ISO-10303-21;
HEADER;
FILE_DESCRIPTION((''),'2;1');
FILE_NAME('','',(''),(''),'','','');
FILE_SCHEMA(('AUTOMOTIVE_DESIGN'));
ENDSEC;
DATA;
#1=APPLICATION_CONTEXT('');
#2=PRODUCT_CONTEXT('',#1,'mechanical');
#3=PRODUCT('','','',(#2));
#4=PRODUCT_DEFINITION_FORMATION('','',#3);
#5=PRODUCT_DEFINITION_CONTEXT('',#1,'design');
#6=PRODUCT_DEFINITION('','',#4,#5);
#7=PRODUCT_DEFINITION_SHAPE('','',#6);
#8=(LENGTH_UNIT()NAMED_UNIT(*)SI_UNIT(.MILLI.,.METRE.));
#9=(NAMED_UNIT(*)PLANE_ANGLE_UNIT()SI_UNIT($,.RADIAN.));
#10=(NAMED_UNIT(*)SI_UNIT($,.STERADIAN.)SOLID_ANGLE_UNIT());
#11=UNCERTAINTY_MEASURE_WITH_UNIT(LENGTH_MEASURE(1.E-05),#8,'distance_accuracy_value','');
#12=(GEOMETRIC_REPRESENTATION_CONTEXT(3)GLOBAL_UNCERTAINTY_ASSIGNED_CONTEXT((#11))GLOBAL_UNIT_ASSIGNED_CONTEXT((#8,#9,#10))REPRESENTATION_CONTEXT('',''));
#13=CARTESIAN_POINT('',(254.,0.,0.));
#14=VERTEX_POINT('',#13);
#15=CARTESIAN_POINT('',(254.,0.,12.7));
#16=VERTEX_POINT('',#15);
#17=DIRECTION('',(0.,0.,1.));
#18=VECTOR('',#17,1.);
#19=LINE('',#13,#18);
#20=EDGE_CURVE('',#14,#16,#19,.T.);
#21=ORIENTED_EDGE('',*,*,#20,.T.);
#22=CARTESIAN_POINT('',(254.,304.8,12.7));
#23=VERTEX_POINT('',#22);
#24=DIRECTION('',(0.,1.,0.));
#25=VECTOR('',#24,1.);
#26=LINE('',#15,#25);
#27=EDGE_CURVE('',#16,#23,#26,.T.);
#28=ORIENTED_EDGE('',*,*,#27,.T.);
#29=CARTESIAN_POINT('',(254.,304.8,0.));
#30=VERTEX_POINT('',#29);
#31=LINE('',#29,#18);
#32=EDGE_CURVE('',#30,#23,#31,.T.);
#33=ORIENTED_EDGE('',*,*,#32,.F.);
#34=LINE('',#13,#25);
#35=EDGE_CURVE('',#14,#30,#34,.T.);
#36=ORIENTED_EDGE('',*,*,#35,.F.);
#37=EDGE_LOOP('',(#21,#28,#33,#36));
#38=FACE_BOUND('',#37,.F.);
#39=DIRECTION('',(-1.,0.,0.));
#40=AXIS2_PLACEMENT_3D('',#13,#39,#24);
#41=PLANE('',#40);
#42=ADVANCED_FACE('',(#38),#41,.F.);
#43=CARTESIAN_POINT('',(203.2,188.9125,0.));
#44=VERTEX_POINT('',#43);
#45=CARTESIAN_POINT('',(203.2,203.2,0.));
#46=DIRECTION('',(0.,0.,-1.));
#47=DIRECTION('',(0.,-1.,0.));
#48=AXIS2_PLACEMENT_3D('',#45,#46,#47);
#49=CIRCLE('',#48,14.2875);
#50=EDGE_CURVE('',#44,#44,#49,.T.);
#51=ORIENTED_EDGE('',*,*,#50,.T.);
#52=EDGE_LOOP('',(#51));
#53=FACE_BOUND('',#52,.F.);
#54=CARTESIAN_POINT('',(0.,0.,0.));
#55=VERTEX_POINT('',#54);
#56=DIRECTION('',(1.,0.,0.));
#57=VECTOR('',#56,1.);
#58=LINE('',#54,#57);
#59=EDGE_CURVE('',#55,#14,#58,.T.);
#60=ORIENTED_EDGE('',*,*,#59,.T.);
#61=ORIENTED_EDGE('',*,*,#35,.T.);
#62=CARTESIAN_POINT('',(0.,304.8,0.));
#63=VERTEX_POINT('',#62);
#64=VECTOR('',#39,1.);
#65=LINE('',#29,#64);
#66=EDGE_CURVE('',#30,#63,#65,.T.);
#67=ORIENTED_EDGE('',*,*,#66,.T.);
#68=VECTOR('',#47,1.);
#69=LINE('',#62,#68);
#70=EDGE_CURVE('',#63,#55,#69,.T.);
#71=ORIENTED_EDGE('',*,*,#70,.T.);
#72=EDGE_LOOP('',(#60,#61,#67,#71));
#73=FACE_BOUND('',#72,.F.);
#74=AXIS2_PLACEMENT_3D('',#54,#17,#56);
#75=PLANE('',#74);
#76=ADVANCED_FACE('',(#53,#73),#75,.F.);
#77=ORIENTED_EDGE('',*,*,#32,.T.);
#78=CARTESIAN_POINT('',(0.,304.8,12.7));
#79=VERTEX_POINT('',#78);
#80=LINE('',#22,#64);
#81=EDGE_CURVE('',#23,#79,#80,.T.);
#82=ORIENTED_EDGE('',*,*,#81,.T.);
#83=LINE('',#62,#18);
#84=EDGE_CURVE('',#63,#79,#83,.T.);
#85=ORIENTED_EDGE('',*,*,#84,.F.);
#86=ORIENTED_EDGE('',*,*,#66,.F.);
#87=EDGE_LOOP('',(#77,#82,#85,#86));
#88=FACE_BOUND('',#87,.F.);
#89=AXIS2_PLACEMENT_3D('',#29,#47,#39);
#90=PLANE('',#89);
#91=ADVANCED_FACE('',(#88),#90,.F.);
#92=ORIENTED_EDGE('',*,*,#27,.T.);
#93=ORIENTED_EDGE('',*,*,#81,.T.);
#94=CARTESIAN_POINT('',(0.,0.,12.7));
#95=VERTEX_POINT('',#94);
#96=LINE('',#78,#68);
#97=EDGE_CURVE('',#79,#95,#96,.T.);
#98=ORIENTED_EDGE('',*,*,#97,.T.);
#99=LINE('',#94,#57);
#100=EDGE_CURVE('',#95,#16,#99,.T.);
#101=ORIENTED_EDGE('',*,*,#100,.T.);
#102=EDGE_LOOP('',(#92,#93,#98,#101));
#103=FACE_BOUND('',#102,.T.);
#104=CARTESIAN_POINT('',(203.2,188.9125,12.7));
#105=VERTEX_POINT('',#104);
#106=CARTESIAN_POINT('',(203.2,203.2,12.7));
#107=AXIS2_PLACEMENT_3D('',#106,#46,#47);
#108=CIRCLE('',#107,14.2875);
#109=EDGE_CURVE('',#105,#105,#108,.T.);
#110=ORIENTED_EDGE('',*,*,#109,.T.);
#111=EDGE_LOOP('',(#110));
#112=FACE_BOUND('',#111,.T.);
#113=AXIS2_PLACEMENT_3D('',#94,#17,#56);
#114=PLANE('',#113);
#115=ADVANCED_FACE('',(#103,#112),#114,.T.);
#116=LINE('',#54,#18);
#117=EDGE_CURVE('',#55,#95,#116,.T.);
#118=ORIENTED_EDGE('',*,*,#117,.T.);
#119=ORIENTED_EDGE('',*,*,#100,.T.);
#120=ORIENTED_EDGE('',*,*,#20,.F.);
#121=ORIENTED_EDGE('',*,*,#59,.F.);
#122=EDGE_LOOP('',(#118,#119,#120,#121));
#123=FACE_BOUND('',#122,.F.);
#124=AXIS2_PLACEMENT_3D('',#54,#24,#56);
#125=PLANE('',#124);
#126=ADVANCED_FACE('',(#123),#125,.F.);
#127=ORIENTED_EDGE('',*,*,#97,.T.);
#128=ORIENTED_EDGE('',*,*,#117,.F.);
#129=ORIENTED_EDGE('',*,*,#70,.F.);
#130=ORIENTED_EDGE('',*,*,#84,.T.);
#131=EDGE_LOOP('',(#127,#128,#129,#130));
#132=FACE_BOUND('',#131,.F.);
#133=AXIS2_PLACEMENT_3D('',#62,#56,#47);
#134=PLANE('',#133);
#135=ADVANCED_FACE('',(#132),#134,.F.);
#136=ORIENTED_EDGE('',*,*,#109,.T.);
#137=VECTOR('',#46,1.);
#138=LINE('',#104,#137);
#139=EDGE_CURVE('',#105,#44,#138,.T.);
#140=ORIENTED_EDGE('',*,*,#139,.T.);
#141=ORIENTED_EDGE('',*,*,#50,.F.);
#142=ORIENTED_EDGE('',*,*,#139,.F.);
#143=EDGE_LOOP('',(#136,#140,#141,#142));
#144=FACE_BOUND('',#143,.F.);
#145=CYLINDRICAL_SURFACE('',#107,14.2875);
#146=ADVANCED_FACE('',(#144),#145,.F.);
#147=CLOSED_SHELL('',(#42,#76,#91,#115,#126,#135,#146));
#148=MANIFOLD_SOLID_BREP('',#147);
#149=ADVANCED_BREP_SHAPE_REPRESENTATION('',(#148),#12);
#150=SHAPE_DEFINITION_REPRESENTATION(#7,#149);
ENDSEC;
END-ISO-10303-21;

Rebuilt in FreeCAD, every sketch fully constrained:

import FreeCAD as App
import Part
import Sketcher

V = App.Vector
Q = App.Units.Quantity


def add_polygon(sketch, points):
    """Adds a closed chain of lines whose ends are joined by coincident constraints."""
    first, n = sketch.GeometryCount, len(points)
    for a, b in zip(points, points[1:] + points[:1]):
        sketch.addGeometry(Part.LineSegment(App.Vector(*a, 0), App.Vector(*b, 0)), False)
    for i in range(n):
        sketch.addConstraint(Sketcher.Constraint("Coincident", first + i, 2, first + (i + 1) % n, 1))

doc = App.newDocument("Part")
params = doc.addObject("Spreadsheet::Sheet", "Params")
for row, (alias, value) in enumerate([
    ("sketch1_width", "10 in"),
    ("sketch1_height", "12 in"),
    ("pad1_length", "0.5 in"),
    ("sketch2_diameter", "1.125 in"),
    ("hole_diameter", "1.125 in"),
], start=1):
    params.set(f"A{row}", alias)
    params.set(f"B{row}", "=" + value)
    params.setAlias(f"B{row}", alias)

body = doc.addObject("PartDesign::Body", "Body")

sketch1 = body.newObject("Sketcher::SketchObject", "Sketch")
sketch1.AttachmentSupport = (doc.getObject("XY_Plane"), [""])
sketch1.MapMode = "FlatFace"
add_polygon(sketch1, [(0, 305), (0, 0), (254, 0), (254, 305)])
sketch1.addConstraint([
    Sketcher.Constraint("Vertical", 0),
    Sketcher.Constraint("Horizontal", 1),
    Sketcher.Constraint("Vertical", 2),
    Sketcher.Constraint("Horizontal", 3),
    Sketcher.Constraint("Coincident", 0, 2, -1, 1),
    Sketcher.Constraint("DistanceX", 1, 1, 1, 2, Q("10 in")),
    Sketcher.Constraint("DistanceY", 0, 2, 0, 1, Q("12 in")),
])
sketch1.setExpression("Constraints[9]", "Params.sketch1_width")
sketch1.setExpression("Constraints[10]", "Params.sketch1_height")
pad1 = body.newObject("PartDesign::Pad", "Pad")
pad1.Profile = sketch1
pad1.setExpression("Length", "Params.pad1_length")

sketch2 = body.newObject("Sketcher::SketchObject", "Sketch001")
sketch2.AttachmentSupport = (doc.getObject("XY_Plane"), [""])
sketch2.MapMode = "FlatFace"
sketch2.AttachmentOffset = App.Placement(V(0, 0, 0.5 * 25.4), App.Rotation())
sketch2.addGeometry(Part.Circle(V(203, 203, 0), V(0, 0, 1), 14), False)
sketch2.addConstraint([
    Sketcher.Constraint("Diameter", 0, Q("1.125 in")),
    Sketcher.Constraint("DistanceX", -1, 1, 0, 3, Q("8 in")),
    Sketcher.Constraint("DistanceY", -1, 1, 0, 3, Q("8 in")),
])
sketch2.setExpression("Constraints[0]", "Params.sketch2_diameter")
doc.recompute()
hole = body.newObject("PartDesign::Hole", "Hole")
hole.Profile = sketch2
hole.ThreadType = "None"
hole.setExpression("Diameter", "Params.hole_diameter")
hole.DepthType = "ThroughAll"

doc.recompute()
